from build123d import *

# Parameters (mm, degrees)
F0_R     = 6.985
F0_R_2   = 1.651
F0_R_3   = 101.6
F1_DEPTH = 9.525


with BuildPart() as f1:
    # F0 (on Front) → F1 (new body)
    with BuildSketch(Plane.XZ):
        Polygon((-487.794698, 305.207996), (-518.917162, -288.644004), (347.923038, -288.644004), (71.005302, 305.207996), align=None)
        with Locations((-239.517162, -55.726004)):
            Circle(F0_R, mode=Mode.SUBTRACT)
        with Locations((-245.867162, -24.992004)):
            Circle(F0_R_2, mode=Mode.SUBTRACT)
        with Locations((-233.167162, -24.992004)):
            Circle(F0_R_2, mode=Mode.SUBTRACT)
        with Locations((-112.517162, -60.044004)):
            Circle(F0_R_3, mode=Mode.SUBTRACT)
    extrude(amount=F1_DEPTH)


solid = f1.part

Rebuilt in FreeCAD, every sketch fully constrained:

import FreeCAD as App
import Part
import Sketcher
Q = App.Units.Quantity

doc = App.newDocument("Part")
body = doc.addObject("PartDesign::Body", "Body")

sketch1 = doc.addObject("Sketcher::SketchObject", "Sketch")
body.addObject(sketch1)
sketch1.AttachmentSupport = (doc.XZ_Plane, [""])
sketch1.MapMode = "FlatFace"
sketch1.addGeometry([
    Part.LineSegment(App.Vector(-487.8, 305.2, 0), App.Vector(-518.9, -288.6, 0)),
    Part.LineSegment(App.Vector(-518.9, -288.6, 0), App.Vector(347.9, -288.6, 0)),
    Part.LineSegment(App.Vector(347.9, -288.6, 0), App.Vector(71, 305.2, 0)),
    Part.LineSegment(App.Vector(71, 305.2, 0), App.Vector(-487.8, 305.2, 0)),
    Part.Circle(App.Vector(-112.5, -60, 0), App.Vector(0, 0, 1), 101.6),
    Part.Circle(App.Vector(-239.5, -55.7, 0), App.Vector(0, 0, 1), 7),
    Part.Circle(App.Vector(-245.9, -25, 0), App.Vector(0, 0, 1), 1.7),
    Part.Circle(App.Vector(-233.2, -25, 0), App.Vector(0, 0, 1), 1.7),
], False)
sketch1.addConstraint([
    Sketcher.Constraint("Coincident", 0, 2, 1, 1),
    Sketcher.Constraint("Coincident", 1, 2, 2, 1),
    Sketcher.Constraint("Coincident", 2, 2, 3, 1),
    Sketcher.Constraint("Coincident", 3, 2, 0, 1),
    Sketcher.Constraint("Horizontal", 1),
    Sketcher.Constraint("Horizontal", 3),
    Sketcher.Constraint("Equal", 6, 7),
    Sketcher.Constraint("Horizontal", 6, 3, 7, 3),
    Sketcher.Constraint("Diameter", 4, Q("8 in")),
    Sketcher.Constraint("Diameter", 5, Q("0.55 in")),
    Sketcher.Constraint("Diameter", 6, Q("0.13 in")),
    Sketcher.Constraint("DistanceX", 3, 2, 3, 1, Q("22 in")),
    Sketcher.Constraint("Angle", 0, Q("-93 deg")),
    Sketcher.Constraint("Angle", 2, Q("115 deg")),
    Sketcher.Constraint("DistanceX", 5, 3, 4, 3, Q("5 in")),
    Sketcher.Constraint("DistanceX", 0, 2, 5, 3, Q("11 in")),
    Sketcher.Constraint("DistanceY", 0, 2, 4, 3, Q("9 in")),
    Sketcher.Constraint("DistanceY", 7, 3, 2, 2, Q("13 in")),
    Sketcher.Constraint("DistanceX", 6, 3, 7, 3, Q("0.5 in")),
    Sketcher.Constraint("DistanceY", 4, 3, 5, 3, Q("0.17 in")),
    Sketcher.Constraint("DistanceX", 6, 3, 5, 3, Q("0.25 in")),
    Sketcher.Constraint("DistanceY", 5, 3, 6, 3, Q("1.21 in")),
    Sketcher.Constraint("DistanceX", -1, 1, 2, 2, Q("71.005302 mm")),
    Sketcher.Constraint("DistanceY", 4, 3, -1, 1, Q("60.044004 mm")),
])
pad1 = doc.addObject("PartDesign::Pad", "Pad")
body.addObject(pad1)
pad1.Profile = sketch1
pad1.Length = Q("0.375 in")

doc.recompute()
